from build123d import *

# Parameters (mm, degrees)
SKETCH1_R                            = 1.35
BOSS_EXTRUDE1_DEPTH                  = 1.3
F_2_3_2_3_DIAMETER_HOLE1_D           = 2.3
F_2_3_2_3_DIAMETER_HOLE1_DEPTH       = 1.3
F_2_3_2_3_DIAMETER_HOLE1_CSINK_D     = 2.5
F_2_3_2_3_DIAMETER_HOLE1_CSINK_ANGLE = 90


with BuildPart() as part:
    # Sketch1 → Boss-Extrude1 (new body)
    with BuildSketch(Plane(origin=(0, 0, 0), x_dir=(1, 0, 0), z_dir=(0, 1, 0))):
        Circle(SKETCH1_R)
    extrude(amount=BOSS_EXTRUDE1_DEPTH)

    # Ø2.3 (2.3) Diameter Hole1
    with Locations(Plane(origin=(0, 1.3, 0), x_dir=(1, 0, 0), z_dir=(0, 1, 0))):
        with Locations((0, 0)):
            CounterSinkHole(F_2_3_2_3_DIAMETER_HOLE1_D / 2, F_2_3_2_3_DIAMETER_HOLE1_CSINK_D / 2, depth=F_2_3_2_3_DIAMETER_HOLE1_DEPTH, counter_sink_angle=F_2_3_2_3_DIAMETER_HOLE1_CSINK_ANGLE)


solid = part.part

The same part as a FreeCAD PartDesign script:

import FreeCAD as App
import Part
import Sketcher
Q = App.Units.Quantity

doc = App.newDocument("Part")
body = doc.addObject("PartDesign::Body", "Body")

# Sketch on XZ plane
sketch1 = doc.addObject("Sketcher::SketchObject", "Sketch")
body.addObject(sketch1)
sketch1.AttachmentSupport = (doc.XZ_Plane, [""])
sketch1.MapMode = "FlatFace"
sketch1.addGeometry(Part.Circle(App.Vector(0, 0, 0), App.Vector(0, 0, 1), 1.4), False)
sketch1.addConstraint(Sketcher.Constraint("Coincident", 0, 3, -1, 1))
sketch1.addConstraint(Sketcher.Constraint("Diameter", 0, Q("2.7 mm")))
pad1 = doc.addObject("PartDesign::Pad", "Pad")
body.addObject(pad1)
pad1.Profile = sketch1
pad1.Length = 1.3
pad1.Reversed = True

# Sketch on XZ plane
sketch2 = doc.addObject("Sketcher::SketchObject", "Sketch001")
body.addObject(sketch2)
sketch2.AttachmentSupport = (doc.XZ_Plane, [""])
sketch2.MapMode = "FlatFace"
sketch2.AttachmentOffset = App.Placement(App.Vector(0, 0, -1.3), App.Rotation())
sketch2.addGeometry(Part.Circle(App.Vector(0, 0, 0), App.Vector(0, 0, 1), 1.1), False)
sketch2.addConstraint(Sketcher.Constraint("Coincident", 0, 3, -1, 1))
sketch2.addConstraint(Sketcher.Constraint("Diameter", 0, Q("2.3 mm")))
doc.recompute()
hole = doc.addObject("PartDesign::Hole", "Hole")
body.addObject(hole)
hole.Profile = sketch2
hole.ThreadType = "None"
hole.Diameter = 2.3
hole.DepthType = "Dimension"
hole.Depth = 1.3
hole.DrillPoint = "Flat"
hole.HoleCutType = "Countersink"
hole.HoleCutDiameter = 2.5
hole.HoleCutCountersinkAngle = 90
hole.Reversed = True

doc.recompute()
